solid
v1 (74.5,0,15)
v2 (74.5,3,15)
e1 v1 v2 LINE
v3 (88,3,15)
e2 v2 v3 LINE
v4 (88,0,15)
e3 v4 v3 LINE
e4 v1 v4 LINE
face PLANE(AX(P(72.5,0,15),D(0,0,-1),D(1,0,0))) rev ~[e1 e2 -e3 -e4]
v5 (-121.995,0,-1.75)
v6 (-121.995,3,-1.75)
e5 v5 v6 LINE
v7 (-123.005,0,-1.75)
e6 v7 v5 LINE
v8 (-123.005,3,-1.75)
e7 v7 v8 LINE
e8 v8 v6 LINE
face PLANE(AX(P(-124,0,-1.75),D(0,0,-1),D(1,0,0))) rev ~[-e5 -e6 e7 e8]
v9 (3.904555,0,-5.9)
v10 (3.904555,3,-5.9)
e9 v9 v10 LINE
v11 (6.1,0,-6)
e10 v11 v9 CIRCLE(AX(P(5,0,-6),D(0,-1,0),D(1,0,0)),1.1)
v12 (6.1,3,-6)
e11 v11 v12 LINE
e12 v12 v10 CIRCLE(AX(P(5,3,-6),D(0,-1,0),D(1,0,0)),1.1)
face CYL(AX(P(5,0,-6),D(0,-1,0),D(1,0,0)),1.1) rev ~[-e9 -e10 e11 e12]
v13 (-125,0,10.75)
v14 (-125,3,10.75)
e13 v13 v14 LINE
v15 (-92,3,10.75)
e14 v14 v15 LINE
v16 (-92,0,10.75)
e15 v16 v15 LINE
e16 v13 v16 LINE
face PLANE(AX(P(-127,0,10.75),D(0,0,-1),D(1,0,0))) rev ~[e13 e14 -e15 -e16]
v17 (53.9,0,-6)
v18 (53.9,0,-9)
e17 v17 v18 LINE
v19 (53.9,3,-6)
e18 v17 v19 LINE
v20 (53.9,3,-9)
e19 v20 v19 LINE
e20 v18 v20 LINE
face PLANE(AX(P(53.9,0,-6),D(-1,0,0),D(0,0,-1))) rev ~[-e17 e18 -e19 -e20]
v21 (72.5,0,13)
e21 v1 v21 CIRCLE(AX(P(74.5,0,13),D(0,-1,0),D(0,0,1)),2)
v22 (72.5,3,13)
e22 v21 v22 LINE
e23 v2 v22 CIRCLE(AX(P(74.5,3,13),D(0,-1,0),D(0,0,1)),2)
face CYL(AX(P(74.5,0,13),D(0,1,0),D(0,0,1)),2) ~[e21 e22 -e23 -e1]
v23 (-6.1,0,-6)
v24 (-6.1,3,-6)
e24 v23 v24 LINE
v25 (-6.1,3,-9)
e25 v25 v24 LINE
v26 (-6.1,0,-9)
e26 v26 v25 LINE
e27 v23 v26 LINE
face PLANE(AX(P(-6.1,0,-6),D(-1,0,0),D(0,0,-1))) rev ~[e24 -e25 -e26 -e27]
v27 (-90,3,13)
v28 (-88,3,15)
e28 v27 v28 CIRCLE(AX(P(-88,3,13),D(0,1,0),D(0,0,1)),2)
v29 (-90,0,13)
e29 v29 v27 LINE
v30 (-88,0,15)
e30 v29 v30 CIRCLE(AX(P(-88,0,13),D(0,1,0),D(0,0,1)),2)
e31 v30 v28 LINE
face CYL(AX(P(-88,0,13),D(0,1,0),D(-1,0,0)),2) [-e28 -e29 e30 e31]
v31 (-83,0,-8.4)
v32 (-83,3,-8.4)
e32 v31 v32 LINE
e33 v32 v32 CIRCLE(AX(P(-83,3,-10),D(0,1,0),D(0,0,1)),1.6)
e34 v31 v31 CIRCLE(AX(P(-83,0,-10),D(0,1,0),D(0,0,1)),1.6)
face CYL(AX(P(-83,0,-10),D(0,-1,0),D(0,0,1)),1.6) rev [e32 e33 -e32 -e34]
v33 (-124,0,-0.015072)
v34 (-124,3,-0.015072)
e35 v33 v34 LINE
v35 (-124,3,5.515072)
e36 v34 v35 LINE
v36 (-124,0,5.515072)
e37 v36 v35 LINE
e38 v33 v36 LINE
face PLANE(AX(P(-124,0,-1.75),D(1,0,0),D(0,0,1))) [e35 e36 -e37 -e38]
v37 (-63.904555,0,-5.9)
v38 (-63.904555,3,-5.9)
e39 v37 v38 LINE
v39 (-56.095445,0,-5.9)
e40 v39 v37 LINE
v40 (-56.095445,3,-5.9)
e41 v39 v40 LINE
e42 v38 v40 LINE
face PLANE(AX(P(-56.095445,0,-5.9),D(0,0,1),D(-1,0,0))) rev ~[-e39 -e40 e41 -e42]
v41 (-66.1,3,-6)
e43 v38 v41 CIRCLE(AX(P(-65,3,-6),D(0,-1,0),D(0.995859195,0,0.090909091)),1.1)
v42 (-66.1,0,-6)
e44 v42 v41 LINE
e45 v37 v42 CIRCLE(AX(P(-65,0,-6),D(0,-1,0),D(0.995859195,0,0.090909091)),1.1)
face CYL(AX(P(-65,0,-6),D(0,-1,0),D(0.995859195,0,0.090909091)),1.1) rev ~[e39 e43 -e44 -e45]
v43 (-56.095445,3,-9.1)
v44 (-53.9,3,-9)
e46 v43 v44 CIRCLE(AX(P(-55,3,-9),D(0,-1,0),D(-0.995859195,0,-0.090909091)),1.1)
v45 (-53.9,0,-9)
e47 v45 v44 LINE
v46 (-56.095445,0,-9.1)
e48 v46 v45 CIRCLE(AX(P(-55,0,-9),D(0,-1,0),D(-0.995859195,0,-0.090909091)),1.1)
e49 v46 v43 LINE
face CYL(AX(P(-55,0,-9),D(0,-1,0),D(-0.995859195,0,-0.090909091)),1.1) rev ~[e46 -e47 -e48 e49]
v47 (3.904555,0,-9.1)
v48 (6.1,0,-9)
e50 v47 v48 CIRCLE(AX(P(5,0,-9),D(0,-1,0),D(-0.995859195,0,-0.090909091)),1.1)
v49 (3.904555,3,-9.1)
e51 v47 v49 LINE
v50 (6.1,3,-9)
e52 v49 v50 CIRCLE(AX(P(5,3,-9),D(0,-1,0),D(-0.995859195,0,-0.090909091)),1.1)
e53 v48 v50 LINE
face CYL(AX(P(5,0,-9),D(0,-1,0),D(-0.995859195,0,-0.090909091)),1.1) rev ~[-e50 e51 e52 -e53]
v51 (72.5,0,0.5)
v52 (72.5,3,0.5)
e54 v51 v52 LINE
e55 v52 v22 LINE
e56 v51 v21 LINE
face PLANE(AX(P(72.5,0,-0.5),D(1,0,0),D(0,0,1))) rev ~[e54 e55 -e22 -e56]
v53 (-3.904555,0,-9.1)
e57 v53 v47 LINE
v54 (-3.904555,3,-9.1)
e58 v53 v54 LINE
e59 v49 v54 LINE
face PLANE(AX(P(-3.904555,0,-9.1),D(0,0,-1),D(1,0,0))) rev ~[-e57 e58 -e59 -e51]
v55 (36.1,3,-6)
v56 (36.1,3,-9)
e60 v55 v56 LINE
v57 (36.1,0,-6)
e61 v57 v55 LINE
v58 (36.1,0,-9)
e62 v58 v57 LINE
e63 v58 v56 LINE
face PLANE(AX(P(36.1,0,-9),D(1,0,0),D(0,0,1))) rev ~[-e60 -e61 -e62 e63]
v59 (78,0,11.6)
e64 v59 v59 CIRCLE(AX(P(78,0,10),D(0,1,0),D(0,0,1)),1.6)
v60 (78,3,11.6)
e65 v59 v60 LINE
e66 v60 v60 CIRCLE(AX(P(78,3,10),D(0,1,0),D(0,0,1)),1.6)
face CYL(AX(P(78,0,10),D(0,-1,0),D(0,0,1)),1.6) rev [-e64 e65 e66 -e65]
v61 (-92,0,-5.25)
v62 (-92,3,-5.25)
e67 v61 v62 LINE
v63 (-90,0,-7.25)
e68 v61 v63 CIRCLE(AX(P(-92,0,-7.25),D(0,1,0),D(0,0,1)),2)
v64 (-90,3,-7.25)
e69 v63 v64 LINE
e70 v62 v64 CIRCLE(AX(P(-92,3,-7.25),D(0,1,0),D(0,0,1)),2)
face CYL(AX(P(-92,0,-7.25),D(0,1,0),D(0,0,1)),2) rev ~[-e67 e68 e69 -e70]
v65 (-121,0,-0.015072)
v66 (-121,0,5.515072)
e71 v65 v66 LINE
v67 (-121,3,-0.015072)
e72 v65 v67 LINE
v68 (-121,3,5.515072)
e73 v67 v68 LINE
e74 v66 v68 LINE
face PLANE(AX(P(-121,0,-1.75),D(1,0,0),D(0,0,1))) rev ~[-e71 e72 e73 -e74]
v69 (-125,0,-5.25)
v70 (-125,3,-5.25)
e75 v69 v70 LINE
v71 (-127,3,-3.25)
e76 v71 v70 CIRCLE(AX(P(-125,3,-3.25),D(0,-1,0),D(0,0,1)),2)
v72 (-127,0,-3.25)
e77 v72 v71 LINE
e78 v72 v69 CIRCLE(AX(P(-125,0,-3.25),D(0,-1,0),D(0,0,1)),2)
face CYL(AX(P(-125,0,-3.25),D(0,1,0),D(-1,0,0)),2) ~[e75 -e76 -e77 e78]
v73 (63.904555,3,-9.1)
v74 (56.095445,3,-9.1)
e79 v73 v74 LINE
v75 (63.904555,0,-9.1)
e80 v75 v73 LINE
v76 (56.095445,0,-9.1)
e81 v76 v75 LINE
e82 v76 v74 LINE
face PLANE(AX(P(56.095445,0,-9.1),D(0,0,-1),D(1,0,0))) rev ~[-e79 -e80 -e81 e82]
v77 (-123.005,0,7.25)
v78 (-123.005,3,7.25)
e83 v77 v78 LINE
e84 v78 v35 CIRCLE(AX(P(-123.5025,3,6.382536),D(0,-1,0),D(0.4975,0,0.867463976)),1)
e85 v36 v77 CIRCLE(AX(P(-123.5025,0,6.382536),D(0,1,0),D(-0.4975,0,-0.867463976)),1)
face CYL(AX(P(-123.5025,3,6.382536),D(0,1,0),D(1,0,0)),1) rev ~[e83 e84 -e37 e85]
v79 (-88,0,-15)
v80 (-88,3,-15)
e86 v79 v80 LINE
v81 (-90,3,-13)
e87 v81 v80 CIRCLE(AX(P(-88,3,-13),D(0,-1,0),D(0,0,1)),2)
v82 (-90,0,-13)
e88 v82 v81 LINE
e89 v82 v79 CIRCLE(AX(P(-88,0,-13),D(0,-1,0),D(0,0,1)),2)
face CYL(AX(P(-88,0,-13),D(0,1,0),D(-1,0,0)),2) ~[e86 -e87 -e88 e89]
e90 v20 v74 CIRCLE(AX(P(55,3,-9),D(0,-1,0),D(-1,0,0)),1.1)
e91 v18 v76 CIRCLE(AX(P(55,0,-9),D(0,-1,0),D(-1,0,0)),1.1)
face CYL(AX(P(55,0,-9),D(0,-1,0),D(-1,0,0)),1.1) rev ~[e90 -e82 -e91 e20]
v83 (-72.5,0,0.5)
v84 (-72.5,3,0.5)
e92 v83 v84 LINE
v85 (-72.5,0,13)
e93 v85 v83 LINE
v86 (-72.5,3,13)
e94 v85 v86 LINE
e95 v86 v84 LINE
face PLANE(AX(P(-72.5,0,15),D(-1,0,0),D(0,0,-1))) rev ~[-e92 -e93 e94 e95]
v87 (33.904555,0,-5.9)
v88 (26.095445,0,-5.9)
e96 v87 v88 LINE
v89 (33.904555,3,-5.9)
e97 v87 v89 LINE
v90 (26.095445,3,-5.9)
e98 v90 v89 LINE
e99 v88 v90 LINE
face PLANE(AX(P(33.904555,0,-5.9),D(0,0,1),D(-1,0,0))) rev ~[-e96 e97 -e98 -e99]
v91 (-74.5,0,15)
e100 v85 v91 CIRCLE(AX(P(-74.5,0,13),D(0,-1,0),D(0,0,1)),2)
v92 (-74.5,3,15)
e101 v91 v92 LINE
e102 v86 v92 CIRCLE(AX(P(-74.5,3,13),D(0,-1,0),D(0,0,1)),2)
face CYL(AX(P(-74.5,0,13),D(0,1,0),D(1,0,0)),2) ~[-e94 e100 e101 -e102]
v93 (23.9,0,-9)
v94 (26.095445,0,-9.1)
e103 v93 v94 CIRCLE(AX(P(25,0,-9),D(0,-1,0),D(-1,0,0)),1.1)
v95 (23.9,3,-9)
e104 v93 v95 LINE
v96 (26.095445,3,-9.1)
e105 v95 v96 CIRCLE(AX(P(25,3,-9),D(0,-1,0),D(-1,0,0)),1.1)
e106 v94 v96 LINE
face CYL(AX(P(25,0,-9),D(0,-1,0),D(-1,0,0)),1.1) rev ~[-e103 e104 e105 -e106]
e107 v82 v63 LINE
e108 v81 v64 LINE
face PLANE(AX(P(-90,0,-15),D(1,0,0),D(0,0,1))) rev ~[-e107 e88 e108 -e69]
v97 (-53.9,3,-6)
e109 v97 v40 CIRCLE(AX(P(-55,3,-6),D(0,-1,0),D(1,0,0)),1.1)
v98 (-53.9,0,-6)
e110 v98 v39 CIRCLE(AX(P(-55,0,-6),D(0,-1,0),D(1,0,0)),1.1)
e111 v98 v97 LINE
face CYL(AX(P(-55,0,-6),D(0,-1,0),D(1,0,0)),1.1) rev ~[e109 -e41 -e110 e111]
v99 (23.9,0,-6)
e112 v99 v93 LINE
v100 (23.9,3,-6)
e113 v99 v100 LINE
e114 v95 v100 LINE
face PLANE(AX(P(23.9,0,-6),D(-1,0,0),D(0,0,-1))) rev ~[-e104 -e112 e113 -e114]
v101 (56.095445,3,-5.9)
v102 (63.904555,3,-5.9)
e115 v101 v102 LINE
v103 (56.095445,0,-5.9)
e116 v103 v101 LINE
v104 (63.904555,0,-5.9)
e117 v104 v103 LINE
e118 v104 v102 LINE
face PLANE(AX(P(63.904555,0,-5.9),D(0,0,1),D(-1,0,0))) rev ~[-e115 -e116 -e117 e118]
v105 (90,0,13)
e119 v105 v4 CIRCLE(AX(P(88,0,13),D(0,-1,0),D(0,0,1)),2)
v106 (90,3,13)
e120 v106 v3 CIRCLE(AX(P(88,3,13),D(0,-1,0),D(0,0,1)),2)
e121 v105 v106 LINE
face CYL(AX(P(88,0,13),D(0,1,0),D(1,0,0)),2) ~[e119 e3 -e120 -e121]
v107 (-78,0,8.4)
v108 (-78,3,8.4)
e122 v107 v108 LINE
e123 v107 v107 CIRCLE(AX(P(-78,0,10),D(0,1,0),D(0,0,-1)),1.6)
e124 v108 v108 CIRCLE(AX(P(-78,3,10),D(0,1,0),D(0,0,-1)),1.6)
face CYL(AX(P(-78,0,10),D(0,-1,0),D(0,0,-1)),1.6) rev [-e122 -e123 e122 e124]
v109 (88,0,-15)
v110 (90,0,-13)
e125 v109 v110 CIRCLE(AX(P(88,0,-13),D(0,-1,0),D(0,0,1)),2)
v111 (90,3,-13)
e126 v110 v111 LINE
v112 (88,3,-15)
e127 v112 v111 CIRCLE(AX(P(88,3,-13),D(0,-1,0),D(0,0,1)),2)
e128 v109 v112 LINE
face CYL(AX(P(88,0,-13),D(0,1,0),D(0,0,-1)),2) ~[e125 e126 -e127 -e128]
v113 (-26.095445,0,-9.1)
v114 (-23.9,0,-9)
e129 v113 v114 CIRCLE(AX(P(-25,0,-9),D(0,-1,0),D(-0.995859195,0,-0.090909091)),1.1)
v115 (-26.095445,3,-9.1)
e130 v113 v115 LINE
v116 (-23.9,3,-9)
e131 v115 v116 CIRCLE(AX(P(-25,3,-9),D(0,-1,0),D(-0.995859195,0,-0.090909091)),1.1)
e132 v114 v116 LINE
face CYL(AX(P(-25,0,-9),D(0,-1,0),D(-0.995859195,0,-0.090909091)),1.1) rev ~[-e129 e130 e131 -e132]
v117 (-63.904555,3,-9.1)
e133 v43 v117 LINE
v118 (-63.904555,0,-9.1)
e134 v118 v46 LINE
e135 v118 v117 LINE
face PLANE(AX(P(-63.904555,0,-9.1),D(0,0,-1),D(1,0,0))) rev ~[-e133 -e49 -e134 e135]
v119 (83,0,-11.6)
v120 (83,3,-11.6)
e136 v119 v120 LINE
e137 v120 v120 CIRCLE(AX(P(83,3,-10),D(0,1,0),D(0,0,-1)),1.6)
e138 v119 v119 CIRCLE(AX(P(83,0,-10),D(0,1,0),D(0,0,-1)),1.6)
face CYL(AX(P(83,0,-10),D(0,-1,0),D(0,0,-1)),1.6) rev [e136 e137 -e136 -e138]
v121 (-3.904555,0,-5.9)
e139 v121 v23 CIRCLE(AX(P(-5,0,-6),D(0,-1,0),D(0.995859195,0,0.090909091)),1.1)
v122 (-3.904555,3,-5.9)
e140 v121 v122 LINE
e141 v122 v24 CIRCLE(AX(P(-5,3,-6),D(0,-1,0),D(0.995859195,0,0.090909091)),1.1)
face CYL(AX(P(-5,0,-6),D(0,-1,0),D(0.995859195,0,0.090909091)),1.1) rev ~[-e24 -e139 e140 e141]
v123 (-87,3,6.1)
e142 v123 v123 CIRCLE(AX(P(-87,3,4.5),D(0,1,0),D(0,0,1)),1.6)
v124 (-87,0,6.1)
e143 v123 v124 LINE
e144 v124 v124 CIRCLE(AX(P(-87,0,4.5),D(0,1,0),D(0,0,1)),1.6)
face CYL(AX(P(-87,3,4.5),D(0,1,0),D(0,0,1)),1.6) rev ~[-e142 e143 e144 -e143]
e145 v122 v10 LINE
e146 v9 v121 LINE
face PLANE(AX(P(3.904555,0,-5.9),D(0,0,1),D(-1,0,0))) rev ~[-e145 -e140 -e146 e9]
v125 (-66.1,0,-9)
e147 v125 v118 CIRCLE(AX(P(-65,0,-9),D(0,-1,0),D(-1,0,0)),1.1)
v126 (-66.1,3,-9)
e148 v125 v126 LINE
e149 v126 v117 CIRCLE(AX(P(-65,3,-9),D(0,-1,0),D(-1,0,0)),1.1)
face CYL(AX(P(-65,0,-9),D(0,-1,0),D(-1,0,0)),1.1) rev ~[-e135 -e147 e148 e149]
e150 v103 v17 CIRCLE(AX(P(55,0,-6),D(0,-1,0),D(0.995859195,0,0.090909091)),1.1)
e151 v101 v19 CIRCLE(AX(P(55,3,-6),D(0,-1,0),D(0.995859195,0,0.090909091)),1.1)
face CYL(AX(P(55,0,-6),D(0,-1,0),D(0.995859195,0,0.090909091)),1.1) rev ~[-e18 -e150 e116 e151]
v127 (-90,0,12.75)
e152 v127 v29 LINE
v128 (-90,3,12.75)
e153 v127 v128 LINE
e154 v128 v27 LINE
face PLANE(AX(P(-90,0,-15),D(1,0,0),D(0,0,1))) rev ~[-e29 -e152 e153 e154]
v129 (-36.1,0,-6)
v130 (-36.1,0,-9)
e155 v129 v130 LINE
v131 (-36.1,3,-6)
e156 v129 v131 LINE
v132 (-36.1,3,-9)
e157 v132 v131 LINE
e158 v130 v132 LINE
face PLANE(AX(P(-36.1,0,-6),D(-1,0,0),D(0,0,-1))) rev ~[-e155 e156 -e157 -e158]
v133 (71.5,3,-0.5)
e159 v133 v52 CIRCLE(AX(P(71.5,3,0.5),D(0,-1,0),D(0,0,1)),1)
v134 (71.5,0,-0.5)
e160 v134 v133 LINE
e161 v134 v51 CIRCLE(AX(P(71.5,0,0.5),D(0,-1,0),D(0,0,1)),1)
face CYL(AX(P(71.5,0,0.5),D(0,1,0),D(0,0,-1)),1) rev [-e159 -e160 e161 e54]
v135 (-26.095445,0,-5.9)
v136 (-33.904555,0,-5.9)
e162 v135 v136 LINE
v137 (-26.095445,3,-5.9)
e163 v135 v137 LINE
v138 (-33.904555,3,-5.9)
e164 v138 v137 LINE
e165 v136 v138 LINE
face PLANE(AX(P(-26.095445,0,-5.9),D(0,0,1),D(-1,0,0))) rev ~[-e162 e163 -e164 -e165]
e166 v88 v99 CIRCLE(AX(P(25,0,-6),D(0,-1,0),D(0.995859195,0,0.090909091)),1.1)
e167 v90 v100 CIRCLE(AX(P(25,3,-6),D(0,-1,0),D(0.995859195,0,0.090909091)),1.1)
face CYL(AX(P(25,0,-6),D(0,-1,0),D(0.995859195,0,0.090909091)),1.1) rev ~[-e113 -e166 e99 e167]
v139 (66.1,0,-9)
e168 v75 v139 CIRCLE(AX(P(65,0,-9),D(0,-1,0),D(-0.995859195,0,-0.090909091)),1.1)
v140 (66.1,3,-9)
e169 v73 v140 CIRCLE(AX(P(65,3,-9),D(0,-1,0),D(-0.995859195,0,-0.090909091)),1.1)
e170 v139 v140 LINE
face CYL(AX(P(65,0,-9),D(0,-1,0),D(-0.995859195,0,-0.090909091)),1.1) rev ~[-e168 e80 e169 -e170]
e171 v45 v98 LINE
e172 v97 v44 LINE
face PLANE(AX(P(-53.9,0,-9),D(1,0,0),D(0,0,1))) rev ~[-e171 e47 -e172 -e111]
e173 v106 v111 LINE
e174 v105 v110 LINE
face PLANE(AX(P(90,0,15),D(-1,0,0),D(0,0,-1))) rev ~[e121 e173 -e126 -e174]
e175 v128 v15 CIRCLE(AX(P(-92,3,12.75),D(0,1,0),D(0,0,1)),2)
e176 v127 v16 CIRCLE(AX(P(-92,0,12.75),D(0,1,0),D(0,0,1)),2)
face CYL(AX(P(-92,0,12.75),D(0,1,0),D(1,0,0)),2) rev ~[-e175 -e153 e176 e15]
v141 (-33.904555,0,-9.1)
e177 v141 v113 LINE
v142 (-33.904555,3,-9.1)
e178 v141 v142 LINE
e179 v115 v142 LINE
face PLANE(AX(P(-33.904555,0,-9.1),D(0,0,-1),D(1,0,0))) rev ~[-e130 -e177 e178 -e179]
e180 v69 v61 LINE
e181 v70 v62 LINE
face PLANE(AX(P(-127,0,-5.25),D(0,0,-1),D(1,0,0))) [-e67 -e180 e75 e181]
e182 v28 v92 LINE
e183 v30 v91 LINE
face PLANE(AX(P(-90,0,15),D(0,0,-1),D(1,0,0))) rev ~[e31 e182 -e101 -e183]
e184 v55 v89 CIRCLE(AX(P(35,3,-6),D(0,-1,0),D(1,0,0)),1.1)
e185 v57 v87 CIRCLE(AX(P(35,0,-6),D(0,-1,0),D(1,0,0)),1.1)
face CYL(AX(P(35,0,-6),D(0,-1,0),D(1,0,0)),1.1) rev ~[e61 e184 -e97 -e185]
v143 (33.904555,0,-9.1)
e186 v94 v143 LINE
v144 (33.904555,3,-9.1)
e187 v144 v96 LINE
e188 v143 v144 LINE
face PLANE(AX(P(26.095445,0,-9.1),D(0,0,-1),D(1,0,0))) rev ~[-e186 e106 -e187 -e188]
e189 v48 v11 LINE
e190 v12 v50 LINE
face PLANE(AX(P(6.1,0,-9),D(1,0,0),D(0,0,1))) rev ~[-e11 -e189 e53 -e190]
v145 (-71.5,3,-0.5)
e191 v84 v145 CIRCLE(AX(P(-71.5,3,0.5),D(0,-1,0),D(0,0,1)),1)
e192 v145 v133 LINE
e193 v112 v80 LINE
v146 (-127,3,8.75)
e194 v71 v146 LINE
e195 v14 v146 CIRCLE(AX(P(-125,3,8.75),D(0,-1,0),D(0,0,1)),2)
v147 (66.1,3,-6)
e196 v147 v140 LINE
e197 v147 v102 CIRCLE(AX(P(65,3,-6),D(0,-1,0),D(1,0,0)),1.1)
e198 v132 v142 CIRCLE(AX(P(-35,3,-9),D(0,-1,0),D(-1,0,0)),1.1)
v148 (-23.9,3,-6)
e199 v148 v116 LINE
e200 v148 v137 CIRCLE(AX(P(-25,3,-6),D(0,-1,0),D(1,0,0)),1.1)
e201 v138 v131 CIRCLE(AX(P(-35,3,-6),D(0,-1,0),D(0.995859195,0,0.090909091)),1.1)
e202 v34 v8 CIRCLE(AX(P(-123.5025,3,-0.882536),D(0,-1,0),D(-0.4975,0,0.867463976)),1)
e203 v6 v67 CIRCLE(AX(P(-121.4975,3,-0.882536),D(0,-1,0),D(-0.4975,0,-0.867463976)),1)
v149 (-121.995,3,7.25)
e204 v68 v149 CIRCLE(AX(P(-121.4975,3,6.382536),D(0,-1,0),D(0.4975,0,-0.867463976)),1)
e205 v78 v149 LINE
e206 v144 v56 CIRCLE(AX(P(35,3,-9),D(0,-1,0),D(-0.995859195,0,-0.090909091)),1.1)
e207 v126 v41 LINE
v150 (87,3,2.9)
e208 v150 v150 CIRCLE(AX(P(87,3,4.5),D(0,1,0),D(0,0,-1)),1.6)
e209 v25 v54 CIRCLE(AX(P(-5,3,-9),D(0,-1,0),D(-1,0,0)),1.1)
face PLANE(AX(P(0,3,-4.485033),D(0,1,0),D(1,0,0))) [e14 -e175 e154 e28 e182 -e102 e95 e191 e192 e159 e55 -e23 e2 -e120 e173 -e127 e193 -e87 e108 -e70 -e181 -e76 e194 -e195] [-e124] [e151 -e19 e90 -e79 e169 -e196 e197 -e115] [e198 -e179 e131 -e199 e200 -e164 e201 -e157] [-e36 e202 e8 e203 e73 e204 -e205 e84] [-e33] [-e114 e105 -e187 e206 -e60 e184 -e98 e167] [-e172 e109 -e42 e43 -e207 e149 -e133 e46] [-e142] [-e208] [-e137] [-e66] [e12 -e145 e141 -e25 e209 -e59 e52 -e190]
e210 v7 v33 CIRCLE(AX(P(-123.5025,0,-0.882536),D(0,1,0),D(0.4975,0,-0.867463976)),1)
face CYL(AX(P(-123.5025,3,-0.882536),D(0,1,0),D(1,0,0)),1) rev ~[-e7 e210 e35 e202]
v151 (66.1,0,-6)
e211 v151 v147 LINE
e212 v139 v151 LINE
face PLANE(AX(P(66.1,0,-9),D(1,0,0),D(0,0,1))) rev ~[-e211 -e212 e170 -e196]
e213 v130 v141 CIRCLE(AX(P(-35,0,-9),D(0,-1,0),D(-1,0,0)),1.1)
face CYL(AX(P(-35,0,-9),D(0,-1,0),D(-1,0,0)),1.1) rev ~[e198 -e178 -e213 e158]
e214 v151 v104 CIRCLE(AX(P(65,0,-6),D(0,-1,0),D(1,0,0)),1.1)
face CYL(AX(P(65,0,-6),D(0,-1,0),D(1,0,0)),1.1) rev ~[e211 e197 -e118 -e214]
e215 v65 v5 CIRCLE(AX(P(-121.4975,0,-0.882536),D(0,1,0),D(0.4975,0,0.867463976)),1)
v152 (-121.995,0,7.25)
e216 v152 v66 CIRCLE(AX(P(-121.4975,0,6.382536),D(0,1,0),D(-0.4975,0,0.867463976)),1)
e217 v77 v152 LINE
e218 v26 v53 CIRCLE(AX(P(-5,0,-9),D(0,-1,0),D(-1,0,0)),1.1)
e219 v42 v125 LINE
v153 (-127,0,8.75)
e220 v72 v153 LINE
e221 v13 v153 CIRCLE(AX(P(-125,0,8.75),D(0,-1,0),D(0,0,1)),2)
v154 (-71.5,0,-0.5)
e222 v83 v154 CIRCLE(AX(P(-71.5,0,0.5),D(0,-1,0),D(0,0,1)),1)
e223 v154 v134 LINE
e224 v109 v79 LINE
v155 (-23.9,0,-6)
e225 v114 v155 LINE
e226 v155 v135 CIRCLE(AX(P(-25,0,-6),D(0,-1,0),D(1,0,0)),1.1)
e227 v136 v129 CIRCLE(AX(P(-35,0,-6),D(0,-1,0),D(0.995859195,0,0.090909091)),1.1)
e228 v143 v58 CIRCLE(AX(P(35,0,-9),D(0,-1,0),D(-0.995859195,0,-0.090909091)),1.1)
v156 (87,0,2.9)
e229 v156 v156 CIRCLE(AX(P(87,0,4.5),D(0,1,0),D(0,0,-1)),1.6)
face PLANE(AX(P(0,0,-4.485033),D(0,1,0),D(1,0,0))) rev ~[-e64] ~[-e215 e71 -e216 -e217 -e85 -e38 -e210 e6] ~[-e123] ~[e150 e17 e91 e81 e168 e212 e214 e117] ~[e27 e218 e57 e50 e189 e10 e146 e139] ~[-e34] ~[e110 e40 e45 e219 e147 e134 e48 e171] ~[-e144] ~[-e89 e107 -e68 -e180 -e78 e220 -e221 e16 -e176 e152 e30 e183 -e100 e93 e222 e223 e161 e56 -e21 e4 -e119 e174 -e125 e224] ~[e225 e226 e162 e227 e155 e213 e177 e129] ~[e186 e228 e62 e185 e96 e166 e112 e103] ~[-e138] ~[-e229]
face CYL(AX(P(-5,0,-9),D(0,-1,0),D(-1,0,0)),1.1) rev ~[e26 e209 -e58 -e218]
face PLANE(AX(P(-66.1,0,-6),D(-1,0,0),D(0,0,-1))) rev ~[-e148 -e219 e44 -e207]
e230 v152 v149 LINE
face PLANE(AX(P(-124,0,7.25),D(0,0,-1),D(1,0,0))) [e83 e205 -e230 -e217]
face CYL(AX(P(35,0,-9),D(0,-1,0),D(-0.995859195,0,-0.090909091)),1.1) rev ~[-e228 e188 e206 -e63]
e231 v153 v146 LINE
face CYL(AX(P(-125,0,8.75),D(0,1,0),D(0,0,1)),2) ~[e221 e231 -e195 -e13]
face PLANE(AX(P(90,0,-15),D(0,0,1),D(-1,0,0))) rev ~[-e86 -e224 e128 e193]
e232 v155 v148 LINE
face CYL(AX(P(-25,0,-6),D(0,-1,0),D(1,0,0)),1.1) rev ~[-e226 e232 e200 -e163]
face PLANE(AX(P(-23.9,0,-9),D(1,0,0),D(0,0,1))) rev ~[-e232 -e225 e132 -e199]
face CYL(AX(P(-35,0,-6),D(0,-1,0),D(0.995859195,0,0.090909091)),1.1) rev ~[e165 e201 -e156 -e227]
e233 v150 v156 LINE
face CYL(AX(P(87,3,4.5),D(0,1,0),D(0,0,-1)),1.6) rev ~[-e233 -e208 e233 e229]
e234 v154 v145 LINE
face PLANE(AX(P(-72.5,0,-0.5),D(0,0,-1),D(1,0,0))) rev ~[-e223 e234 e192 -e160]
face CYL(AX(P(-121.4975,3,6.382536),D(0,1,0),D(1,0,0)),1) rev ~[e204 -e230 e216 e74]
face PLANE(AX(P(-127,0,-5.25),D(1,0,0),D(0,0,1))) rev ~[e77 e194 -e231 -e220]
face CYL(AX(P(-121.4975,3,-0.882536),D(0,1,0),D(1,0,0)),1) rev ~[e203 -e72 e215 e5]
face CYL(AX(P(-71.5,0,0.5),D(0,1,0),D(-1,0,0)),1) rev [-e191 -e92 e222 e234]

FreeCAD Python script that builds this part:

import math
import FreeCAD as App
import Part
import Sketcher
Q = App.Units.Quantity


def edges_at(feature, points):
    """Names of the edges that pass closest to the given points."""
    edges = feature.Shape.Edges
    near = lambda p: min(range(len(edges)), key=lambda i: edges[i].distToShape(Part.Vertex(*p))[0])
    return sorted({f"Edge{near(p) + 1}" for p in points})


def add_polygon(sketch, points):
    """Adds a closed chain of lines whose ends are joined by coincident constraints."""
    first, n = sketch.GeometryCount, len(points)
    for a, b in zip(points, points[1:] + points[:1]):
        sketch.addGeometry(Part.LineSegment(App.Vector(*a, 0), App.Vector(*b, 0)), False)
    for i in range(n):
        sketch.addConstraint(Sketcher.Constraint("Coincident", first + i, 2, first + (i + 1) % n, 1))

doc = App.newDocument("Part")
body = doc.addObject("PartDesign::Body", "Body")

sketch1 = doc.addObject("Sketcher::SketchObject", "Sketch")
body.addObject(sketch1)
sketch1.AttachmentSupport = (doc.XZ_Plane, [""])
sketch1.MapMode = "FlatFace"
add_polygon(sketch1, [(-90, 15), (-72.5, 15), (-72.5, -0.5), (72.5, -0.5), (72.5, 15), (90, 15), (90, -15), (-90, -15)])
sketch1.addGeometry(Part.Circle(App.Vector(-78, 10, 0), App.Vector(0, 0, 1), 1.6), False)
sketch1.addGeometry(Part.Circle(App.Vector(78, 10, 0), App.Vector(0, 0, 1), 1.6), False)
sketch1.addGeometry(Part.Circle(App.Vector(-83, -10, 0), App.Vector(0, 0, 1), 1.6), False)
sketch1.addGeometry(Part.Circle(App.Vector(83, -10, 0), App.Vector(0, 0, 1), 1.6), False)
sketch1.addConstraint(Sketcher.Constraint("Horizontal", 0))
sketch1.addConstraint(Sketcher.Constraint("Vertical", 1))
sketch1.addConstraint(Sketcher.Constraint("Horizontal", 2))
sketch1.addConstraint(Sketcher.Constraint("Vertical", 3))
sketch1.addConstraint(Sketcher.Constraint("Horizontal", 4))
sketch1.addConstraint(Sketcher.Constraint("Vertical", 5))
sketch1.addConstraint(Sketcher.Constraint("Horizontal", 6))
sketch1.addConstraint(Sketcher.Constraint("Vertical", 7))
sketch1.addConstraint(Sketcher.Constraint("Equal", 8, 9))
sketch1.addConstraint(Sketcher.Constraint("Equal", 9, 10))
sketch1.addConstraint(Sketcher.Constraint("Equal", 10, 11))
sketch1.addConstraint(Sketcher.Constraint("Symmetric", 4, 2, 6, 2, -1, 1))
sketch1.addConstraint(Sketcher.Constraint("Symmetric", 8, 3, 9, 3, -2))
sketch1.addConstraint(Sketcher.Constraint("Symmetric", 10, 3, 11, 3, -2))
sketch1.addConstraint(Sketcher.Constraint("Symmetric", 0, 2, 3, 2, -2))
sketch1.addConstraint(Sketcher.Constraint("Diameter", 8, Q("3.2 mm")))
sketch1.addConstraint(Sketcher.Constraint("DistanceX", 2, 1, 2, 2, Q("145 mm")))
sketch1.addConstraint(Sketcher.Constraint("DistanceX", 6, 2, 6, 1, Q("180 mm")))
sketch1.addConstraint(Sketcher.Constraint("DistanceY", 5, 2, 5, 1, Q("30 mm")))
sketch1.addConstraint(Sketcher.Constraint("DistanceY", 1, 2, 1, 1, Q("15.5 mm")))
sketch1.addConstraint(Sketcher.Constraint("DistanceX", 8, 3, -1, 1, Q("78 mm")))
sketch1.addConstraint(Sketcher.Constraint("DistanceY", -1, 1, 8, 3, Q("10 mm")))
sketch1.addConstraint(Sketcher.Constraint("DistanceX", 10, 3, -1, 1, Q("83 mm")))
sketch1.addConstraint(Sketcher.Constraint("DistanceY", 10, 3, -1, 1, Q("10 mm")))
pad1 = doc.addObject("PartDesign::Pad", "Pad")
body.addObject(pad1)
pad1.Profile = sketch1
pad1.Length = 3
pad1.Reversed = True

sketch2 = doc.addObject("Sketcher::SketchObject", "Sketch001")
body.addObject(sketch2)
sketch2.AttachmentSupport = (doc.XZ_Plane, [""])
sketch2.MapMode = "FlatFace"
sketch2.AttachmentOffset = App.Placement(App.Vector(0, 0, -3), App.Rotation())
sketch2.addGeometry(Part.Circle(App.Vector(87, 4.5, 0), App.Vector(0, 0, 1), 1.6), False)
sketch2.addGeometry(Part.Circle(App.Vector(-87, 4.5, 0), App.Vector(0, 0, 1), 1.6), False)
sketch2.addConstraint(Sketcher.Constraint("Equal", 0, 1))
sketch2.addConstraint(Sketcher.Constraint("Symmetric", 0, 3, 1, 3, -2))
sketch2.addConstraint(Sketcher.Constraint("Diameter", 0, Q("3.2 mm")))
sketch2.addConstraint(Sketcher.Constraint("DistanceX", -1, 1, 0, 3, Q("87 mm")))
sketch2.addConstraint(Sketcher.Constraint("DistanceY", -1, 1, 0, 3, Q("4.5 mm")))
pocket1 = doc.addObject("PartDesign::Pocket", "Pocket")
body.addObject(pocket1)
pocket1.Profile = sketch2
pocket1.Type = "ThroughAll"
pocket1.Reversed = True
doc.recompute()

fillet = doc.addObject("PartDesign::Fillet", "Fillet")
body.addObject(fillet)
fillet.Base = (pocket1, edges_at(pocket1, [(72.5, 1.5, -0.5), (-72.5, 1.5, -0.5)]))
fillet.Radius = 1

sketch3 = doc.addObject("Sketcher::SketchObject", "Sketch002")
body.addObject(sketch3)
sketch3.AttachmentSupport = (doc.XZ_Plane, [""])
sketch3.MapMode = "FlatFace"
add_polygon(sketch3, [(54, -6), (54, -9), (66, -9), (66, -6)])
add_polygon(sketch3, [(24, -6), (24, -9), (36, -9), (36, -6)])
add_polygon(sketch3, [(-6, -6), (-6, -9), (6, -9), (6, -6)])
add_polygon(sketch3, [(-36, -6), (-36, -9), (-24, -9), (-24, -6)])
add_polygon(sketch3, [(-66, -6), (-66, -9), (-54, -9), (-54, -6)])
sketch3.addConstraint(Sketcher.Constraint("Vertical", 0))
sketch3.addConstraint(Sketcher.Constraint("Horizontal", 1))
sketch3.addConstraint(Sketcher.Constraint("Vertical", 2))
sketch3.addConstraint(Sketcher.Constraint("Horizontal", 3))
sketch3.addConstraint(Sketcher.Constraint("Vertical", 4))
sketch3.addConstraint(Sketcher.Constraint("Horizontal", 5))
sketch3.addConstraint(Sketcher.Constraint("Vertical", 6))
sketch3.addConstraint(Sketcher.Constraint("Horizontal", 7))
sketch3.addConstraint(Sketcher.Constraint("Vertical", 8))
sketch3.addConstraint(Sketcher.Constraint("Horizontal", 9))
sketch3.addConstraint(Sketcher.Constraint("Vertical", 10))
sketch3.addConstraint(Sketcher.Constraint("Horizontal", 11))
sketch3.addConstraint(Sketcher.Constraint("Vertical", 12))
sketch3.addConstraint(Sketcher.Constraint("Horizontal", 13))
sketch3.addConstraint(Sketcher.Constraint("Vertical", 14))
sketch3.addConstraint(Sketcher.Constraint("Horizontal", 15))
sketch3.addConstraint(Sketcher.Constraint("Vertical", 16))
sketch3.addConstraint(Sketcher.Constraint("Horizontal", 17))
sketch3.addConstraint(Sketcher.Constraint("Vertical", 18))
sketch3.addConstraint(Sketcher.Constraint("Horizontal", 19))
sketch3.addConstraint(Sketcher.Constraint("Symmetric", 5, 2, 12, 2, -2))
sketch3.addConstraint(Sketcher.Constraint("Symmetric", 7, 2, 14, 2, -2))
sketch3.addConstraint(Sketcher.Constraint("Symmetric", 1, 2, 16, 2, -2))
sketch3.addConstraint(Sketcher.Constraint("Symmetric", 3, 2, 18, 2, -2))
sketch3.addConstraint(Sketcher.Constraint("Horizontal", 1, 2, 4, 2))
sketch3.addConstraint(Sketcher.Constraint("Horizontal", 3, 2, 6, 2))
sketch3.addConstraint(Sketcher.Constraint("Horizontal", 5, 2, 8, 2))
sketch3.addConstraint(Sketcher.Constraint("Horizontal", 7, 2, 10, 2))
sketch3.addConstraint(Sketcher.Constraint("Equal", 3, 5))
sketch3.addConstraint(Sketcher.Constraint("Equal", 7, 9))
sketch3.addConstraint(Sketcher.Constraint("DistanceX", 1, 1, 1, 2, Q("12 mm")))
sketch3.addConstraint(Sketcher.Constraint("DistanceY", 0, 2, 0, 1, Q("3 mm")))
sketch3.addConstraint(Sketcher.Constraint("DistanceX", -1, 1, 0, 2, Q("54 mm")))
sketch3.addConstraint(Sketcher.Constraint("DistanceY", 0, 2, -1, 1, Q("9 mm")))
sketch3.addConstraint(Sketcher.Constraint("DistanceX", -1, 1, 4, 2, Q("24 mm")))
sketch3.addConstraint(Sketcher.Constraint("DistanceX", 8, 2, -1, 1, Q("6 mm")))
pocket2 = doc.addObject("PartDesign::Pocket", "Pocket001")
body.addObject(pocket2)
pocket2.Profile = sketch3
pocket2.Type = "ThroughAll"

sketch4 = doc.addObject("Sketcher::SketchObject", "Sketch003")
body.addObject(sketch4)
sketch4.AttachmentSupport = (doc.XZ_Plane, [""])
sketch4.MapMode = "FlatFace"
sketch4.addGeometry(Part.Circle(App.Vector(65, -9, 0), App.Vector(0, 0, 1), 1), False)
sketch4.addGeometry(Part.Circle(App.Vector(55, -9, 0), App.Vector(0, 0, 1), 1), False)
sketch4.addGeometry(Part.Circle(App.Vector(55, -6, 0), App.Vector(0, 0, 1), 1), False)
sketch4.addGeometry(Part.Circle(App.Vector(65, -6, 0), App.Vector(0, 0, 1), 1), False)
sketch4.addGeometry(Part.Circle(App.Vector(35, -9, 0), App.Vector(0, 0, 1), 1), False)
sketch4.addGeometry(Part.Circle(App.Vector(25, -9, 0), App.Vector(0, 0, 1), 1), False)
sketch4.addGeometry(Part.Circle(App.Vector(25, -6, 0), App.Vector(0, 0, 1), 1), False)
sketch4.addGeometry(Part.Circle(App.Vector(35, -6, 0), App.Vector(0, 0, 1), 1), False)
sketch4.addGeometry(Part.Circle(App.Vector(5, -9, 0), App.Vector(0, 0, 1), 1), False)
sketch4.addGeometry(Part.Circle(App.Vector(-5, -9, 0), App.Vector(0, 0, 1), 1), False)
sketch4.addGeometry(Part.Circle(App.Vector(-5, -6, 0), App.Vector(0, 0, 1), 1), False)
sketch4.addGeometry(Part.Circle(App.Vector(5, -6, 0), App.Vector(0, 0, 1), 1), False)
sketch4.addGeometry(Part.Circle(App.Vector(-25, -9, 0), App.Vector(0, 0, 1), 1), False)
sketch4.addGeometry(Part.Circle(App.Vector(-35, -9, 0), App.Vector(0, 0, 1), 1), False)
sketch4.addGeometry(Part.Circle(App.Vector(-35, -6, 0), App.Vector(0, 0, 1), 1), False)
sketch4.addGeometry(Part.Circle(App.Vector(-25, -6, 0), App.Vector(0, 0, 1), 1), False)
sketch4.addGeometry(Part.Circle(App.Vector(-55, -9, 0), App.Vector(0, 0, 1), 1), False)
sketch4.addGeometry(Part.Circle(App.Vector(-65, -9, 0), App.Vector(0, 0, 1), 1), False)
sketch4.addGeometry(Part.Circle(App.Vector(-65, -6, 0), App.Vector(0, 0, 1), 1), False)
sketch4.addGeometry(Part.Circle(App.Vector(-55, -6, 0), App.Vector(0, 0, 1), 1), False)
sketch4.addConstraint(Sketcher.Constraint("Equal", 0, 1))
sketch4.addConstraint(Sketcher.Constraint("Equal", 1, 2))
sketch4.addConstraint(Sketcher.Constraint("Equal", 2, 3))
sketch4.addConstraint(Sketcher.Constraint("Equal", 3, 4))
sketch4.addConstraint(Sketcher.Constraint("Equal", 4, 5))
sketch4.addConstraint(Sketcher.Constraint("Equal", 5, 6))
sketch4.addConstraint(Sketcher.Constraint("Equal", 6, 7))
sketch4.addConstraint(Sketcher.Constraint("Equal", 7, 8))
sketch4.addConstraint(Sketcher.Constraint("Equal", 8, 9))
sketch4.addConstraint(Sketcher.Constraint("Equal", 9, 10))
sketch4.addConstraint(Sketcher.Constraint("Equal", 10, 11))
sketch4.addConstraint(Sketcher.Constraint("Equal", 11, 12))
sketch4.addConstraint(Sketcher.Constraint("Equal", 12, 13))
sketch4.addConstraint(Sketcher.Constraint("Equal", 13, 14))
sketch4.addConstraint(Sketcher.Constraint("Equal", 14, 15))
sketch4.addConstraint(Sketcher.Constraint("Equal", 15, 16))
sketch4.addConstraint(Sketcher.Constraint("Equal", 16, 17))
sketch4.addConstraint(Sketcher.Constraint("Equal", 17, 18))
sketch4.addConstraint(Sketcher.Constraint("Equal", 18, 19))
sketch4.addConstraint(Sketcher.Constraint("Symmetric", 8, 3, 9, 3, -2))
sketch4.addConstraint(Sketcher.Constraint("Symmetric", 10, 3, 11, 3, -2))
sketch4.addConstraint(Sketcher.Constraint("Symmetric", 5, 3, 12, 3, -2))
sketch4.addConstraint(Sketcher.Constraint("Symmetric", 4, 3, 13, 3, -2))
sketch4.addConstraint(Sketcher.Constraint("Symmetric", 7, 3, 14, 3, -2))
sketch4.addConstraint(Sketcher.Constraint("Symmetric", 6, 3, 15, 3, -2))
sketch4.addConstraint(Sketcher.Constraint("Symmetric", 1, 3, 16, 3, -2))
sketch4.addConstraint(Sketcher.Constraint("Symmetric", 0, 3, 17, 3, -2))
sketch4.addConstraint(Sketcher.Constraint("Symmetric", 3, 3, 18, 3, -2))
sketch4.addConstraint(Sketcher.Constraint("Symmetric", 2, 3, 19, 3, -2))
sketch4.addConstraint(Sketcher.Constraint("Horizontal", 0, 3, 1, 3))
sketch4.addConstraint(Sketcher.Constraint("Horizontal", 2, 3, 3, 3))
sketch4.addConstraint(Sketcher.Constraint("Horizontal", 1, 3, 4, 3))
sketch4.addConstraint(Sketcher.Constraint("Horizontal", 4, 3, 5, 3))
sketch4.addConstraint(Sketcher.Constraint("Horizontal", 3, 3, 6, 3))
sketch4.addConstraint(Sketcher.Constraint("Horizontal", 6, 3, 7, 3))
sketch4.addConstraint(Sketcher.Constraint("Horizontal", 5, 3, 8, 3))
sketch4.addConstraint(Sketcher.Constraint("Horizontal", 7, 3, 10, 3))
sketch4.addConstraint(Sketcher.Constraint("Vertical", 1, 3, 2, 3))
sketch4.addConstraint(Sketcher.Constraint("Vertical", 0, 3, 3, 3))
sketch4.addConstraint(Sketcher.Constraint("Vertical", 5, 3, 6, 3))
sketch4.addConstraint(Sketcher.Constraint("Vertical", 4, 3, 7, 3))
sketch4.addConstraint(Sketcher.Constraint("Vertical", 9, 3, 10, 3))
sketch4.addConstraint(Sketcher.Constraint("Diameter", 0, Q("2 mm")))
sketch4.addConstraint(Sketcher.Constraint("DistanceX", -1, 1, 0, 3, Q("65 mm")))
sketch4.addConstraint(Sketcher.Constraint("DistanceY", 0, 3, -1, 1, Q("9 mm")))
sketch4.addConstraint(Sketcher.Constraint("DistanceX", -1, 1, 1, 3, Q("55 mm")))
sketch4.addConstraint(Sketcher.Constraint("DistanceY", 2, 3, -1, 1, Q("6 mm")))
sketch4.addConstraint(Sketcher.Constraint("DistanceX", -1, 1, 4, 3, Q("35 mm")))
sketch4.addConstraint(Sketcher.Constraint("DistanceX", -1, 1, 5, 3, Q("25 mm")))
sketch4.addConstraint(Sketcher.Constraint("DistanceX", -1, 1, 8, 3, Q("5 mm")))
pocket3 = doc.addObject("PartDesign::Pocket", "Pocket002")
body.addObject(pocket3)
pocket3.Profile = sketch4
pocket3.Type = "ThroughAll"

sketch5 = doc.addObject("Sketcher::SketchObject", "Sketch004")
body.addObject(sketch5)
sketch5.AttachmentSupport = (doc.XZ_Plane, [""])
sketch5.MapMode = "FlatFace"
sketch5.addGeometry(Part.LineSegment(App.Vector(36.1, -9, 0), App.Vector(36.1, -6, 0)), False)
sketch5.addGeometry(Part.ArcOfCircle(Part.Circle(App.Vector(35, -6, 0), App.Vector(0, 0, 1), 1.1), math.radians(0), math.radians(174.784091)), False)
sketch5.addGeometry(Part.LineSegment(App.Vector(33.904555, -5.9, 0), App.Vector(26.095445, -5.9, 0)), False)
sketch5.addGeometry(Part.ArcOfCircle(Part.Circle(App.Vector(25, -6, 0), App.Vector(0, 0, 1), 1.1), math.radians(5.215909), math.radians(180)), False)
sketch5.addGeometry(Part.LineSegment(App.Vector(23.9, -6, 0), App.Vector(23.9, -9, 0)), False)
sketch5.addGeometry(Part.ArcOfCircle(Part.Circle(App.Vector(25, -9, 0), App.Vector(0, 0, 1), 1.1), math.radians(180), math.radians(354.784091)), False)
sketch5.addGeometry(Part.LineSegment(App.Vector(26.095445, -9.1, 0), App.Vector(33.904555, -9.1, 0)), False)
sketch5.addGeometry(Part.ArcOfCircle(Part.Circle(App.Vector(35, -9, 0), App.Vector(0, 0, 1), 1.1), math.radians(-174.784091), math.radians(0)), False)
sketch5.addGeometry(Part.LineSegment(App.Vector(66.1, -9, 0), App.Vector(66.1, -6, 0)), False)
sketch5.addGeometry(Part.ArcOfCircle(Part.Circle(App.Vector(65, -6, 0), App.Vector(0, 0, 1), 1.1), math.radians(0), math.radians(174.784091)), False)
sketch5.addGeometry(Part.LineSegment(App.Vector(63.904555, -5.9, 0), App.Vector(56.095445, -5.9, 0)), False)
sketch5.addGeometry(Part.ArcOfCircle(Part.Circle(App.Vector(55, -6, 0), App.Vector(0, 0, 1), 1.1), math.radians(5.215909), math.radians(180)), False)
sketch5.addGeometry(Part.LineSegment(App.Vector(53.9, -6, 0), App.Vector(53.9, -9, 0)), False)
sketch5.addGeometry(Part.ArcOfCircle(Part.Circle(App.Vector(55, -9, 0), App.Vector(0, 0, 1), 1.1), math.radians(180), math.radians(354.784091)), False)
sketch5.addGeometry(Part.LineSegment(App.Vector(56.095445, -9.1, 0), App.Vector(63.904555, -9.1, 0)), False)
sketch5.addGeometry(Part.ArcOfCircle(Part.Circle(App.Vector(65, -9, 0), App.Vector(0, 0, 1), 1.1), math.radians(-174.784091), math.radians(0)), False)
sketch5.addGeometry(Part.LineSegment(App.Vector(6.1, -9, 0), App.Vector(6.1, -6, 0)), False)
sketch5.addGeometry(Part.ArcOfCircle(Part.Circle(App.Vector(5, -6, 0), App.Vector(0, 0, 1), 1.1), math.radians(0), math.radians(174.784091)), False)
sketch5.addGeometry(Part.LineSegment(App.Vector(3.904555, -5.9, 0), App.Vector(-3.904555, -5.9, 0)), False)
sketch5.addGeometry(Part.ArcOfCircle(Part.Circle(App.Vector(-5, -6, 0), App.Vector(0, 0, 1), 1.1), math.radians(5.215909), math.radians(180)), False)
sketch5.addGeometry(Part.LineSegment(App.Vector(-6.1, -6, 0), App.Vector(-6.1, -9, 0)), False)
sketch5.addGeometry(Part.ArcOfCircle(Part.Circle(App.Vector(-5, -9, 0), App.Vector(0, 0, 1), 1.1), math.radians(180), math.radians(354.784091)), False)
sketch5.addGeometry(Part.LineSegment(App.Vector(-3.904555, -9.1, 0), App.Vector(3.904555, -9.1, 0)), False)
sketch5.addGeometry(Part.ArcOfCircle(Part.Circle(App.Vector(5, -9, 0), App.Vector(0, 0, 1), 1.1), math.radians(-174.784091), math.radians(0)), False)
sketch5.addGeometry(Part.LineSegment(App.Vector(-23.9, -9, 0), App.Vector(-23.9, -6, 0)), False)
sketch5.addGeometry(Part.ArcOfCircle(Part.Circle(App.Vector(-25, -6, 0), App.Vector(0, 0, 1), 1.1), math.radians(0), math.radians(174.784091)), False)
sketch5.addGeometry(Part.LineSegment(App.Vector(-26.095445, -5.9, 0), App.Vector(-33.904555, -5.9, 0)), False)
sketch5.addGeometry(Part.ArcOfCircle(Part.Circle(App.Vector(-35, -6, 0), App.Vector(0, 0, 1), 1.1), math.radians(5.215909), math.radians(180)), False)
sketch5.addGeometry(Part.LineSegment(App.Vector(-36.1, -6, 0), App.Vector(-36.1, -9, 0)), False)
sketch5.addGeometry(Part.ArcOfCircle(Part.Circle(App.Vector(-35, -9, 0), App.Vector(0, 0, 1), 1.1), math.radians(180), math.radians(354.784091)), False)
sketch5.addGeometry(Part.LineSegment(App.Vector(-33.904555, -9.1, 0), App.Vector(-26.095445, -9.1, 0)), False)
sketch5.addGeometry(Part.ArcOfCircle(Part.Circle(App.Vector(-25, -9, 0), App.Vector(0, 0, 1), 1.1), math.radians(-174.784091), math.radians(0)), False)
sketch5.addGeometry(Part.LineSegment(App.Vector(-53.9, -9, 0), App.Vector(-53.9, -6, 0)), False)
sketch5.addGeometry(Part.ArcOfCircle(Part.Circle(App.Vector(-55, -6, 0), App.Vector(0, 0, 1), 1.1), math.radians(0), math.radians(174.784091)), False)
sketch5.addGeometry(Part.LineSegment(App.Vector(-56.095445, -5.9, 0), App.Vector(-63.904555, -5.9, 0)), False)
sketch5.addGeometry(Part.ArcOfCircle(Part.Circle(App.Vector(-65, -6, 0), App.Vector(0, 0, 1), 1.1), math.radians(5.215909), math.radians(180)), False)
sketch5.addGeometry(Part.LineSegment(App.Vector(-66.1, -6, 0), App.Vector(-66.1, -9, 0)), False)
sketch5.addGeometry(Part.ArcOfCircle(Part.Circle(App.Vector(-65, -9, 0), App.Vector(0, 0, 1), 1.1), math.radians(180), math.radians(354.784091)), False)
sketch5.addGeometry(Part.LineSegment(App.Vector(-63.904555, -9.1, 0), App.Vector(-56.095445, -9.1, 0)), False)
sketch5.addGeometry(Part.ArcOfCircle(Part.Circle(App.Vector(-55, -9, 0), App.Vector(0, 0, 1), 1.1), math.radians(-174.784091), math.radians(0)), False)
sketch5.addConstraint(Sketcher.Constraint("Tangent", 0, 2, 1, 1))
sketch5.addConstraint(Sketcher.Constraint("Coincident", 1, 2, 2, 1))
sketch5.addConstraint(Sketcher.Constraint("Coincident", 2, 2, 3, 1))
sketch5.addConstraint(Sketcher.Constraint("Tangent", 3, 2, 4, 1))
sketch5.addConstraint(Sketcher.Constraint("Tangent", 4, 2, 5, 1))
sketch5.addConstraint(Sketcher.Constraint("Coincident", 5, 2, 6, 1))
sketch5.addConstraint(Sketcher.Constraint("Coincident", 6, 2, 7, 1))
sketch5.addConstraint(Sketcher.Constraint("Tangent", 7, 2, 0, 1))
sketch5.addConstraint(Sketcher.Constraint("Tangent", 8, 2, 9, 1))
sketch5.addConstraint(Sketcher.Constraint("Coincident", 9, 2, 10, 1))
sketch5.addConstraint(Sketcher.Constraint("Coincident", 10, 2, 11, 1))
sketch5.addConstraint(Sketcher.Constraint("Tangent", 11, 2, 12, 1))
sketch5.addConstraint(Sketcher.Constraint("Tangent", 12, 2, 13, 1))
sketch5.addConstraint(Sketcher.Constraint("Coincident", 13, 2, 14, 1))
sketch5.addConstraint(Sketcher.Constraint("Coincident", 14, 2, 15, 1))
sketch5.addConstraint(Sketcher.Constraint("Tangent", 15, 2, 8, 1))
sketch5.addConstraint(Sketcher.Constraint("Tangent", 16, 2, 17, 1))
sketch5.addConstraint(Sketcher.Constraint("Coincident", 17, 2, 18, 1))
sketch5.addConstraint(Sketcher.Constraint("Coincident", 18, 2, 19, 1))
sketch5.addConstraint(Sketcher.Constraint("Tangent", 19, 2, 20, 1))
sketch5.addConstraint(Sketcher.Constraint("Tangent", 20, 2, 21, 1))
sketch5.addConstraint(Sketcher.Constraint("Coincident", 21, 2, 22, 1))
sketch5.addConstraint(Sketcher.Constraint("Coincident", 22, 2, 23, 1))
sketch5.addConstraint(Sketcher.Constraint("Tangent", 23, 2, 16, 1))
sketch5.addConstraint(Sketcher.Constraint("Tangent", 24, 2, 25, 1))
sketch5.addConstraint(Sketcher.Constraint("Coincident", 25, 2, 26, 1))
sketch5.addConstraint(Sketcher.Constraint("Coincident", 26, 2, 27, 1))
sketch5.addConstraint(Sketcher.Constraint("Tangent", 27, 2, 28, 1))
sketch5.addConstraint(Sketcher.Constraint("Tangent", 28, 2, 29, 1))
sketch5.addConstraint(Sketcher.Constraint("Coincident", 29, 2, 30, 1))
sketch5.addConstraint(Sketcher.Constraint("Coincident", 30, 2, 31, 1))
sketch5.addConstraint(Sketcher.Constraint("Tangent", 31, 2, 24, 1))
sketch5.addConstraint(Sketcher.Constraint("Tangent", 32, 2, 33, 1))
sketch5.addConstraint(Sketcher.Constraint("Coincident", 33, 2, 34, 1))
sketch5.addConstraint(Sketcher.Constraint("Coincident", 34, 2, 35, 1))
sketch5.addConstraint(Sketcher.Constraint("Tangent", 35, 2, 36, 1))
sketch5.addConstraint(Sketcher.Constraint("Tangent", 36, 2, 37, 1))
sketch5.addConstraint(Sketcher.Constraint("Coincident", 37, 2, 38, 1))
sketch5.addConstraint(Sketcher.Constraint("Coincident", 38, 2, 39, 1))
sketch5.addConstraint(Sketcher.Constraint("Tangent", 39, 2, 32, 1))
sketch5.addConstraint(Sketcher.Constraint("Vertical", 0))
sketch5.addConstraint(Sketcher.Constraint("Horizontal", 2))
sketch5.addConstraint(Sketcher.Constraint("Vertical", 4))
sketch5.addConstraint(Sketcher.Constraint("Horizontal", 6))
sketch5.addConstraint(Sketcher.Constraint("Vertical", 8))
sketch5.addConstraint(Sketcher.Constraint("Horizontal", 10))
sketch5.addConstraint(Sketcher.Constraint("Vertical", 12))
sketch5.addConstraint(Sketcher.Constraint("Horizontal", 14))
sketch5.addConstraint(Sketcher.Constraint("Vertical", 16))
sketch5.addConstraint(Sketcher.Constraint("Horizontal", 18))
sketch5.addConstraint(Sketcher.Constraint("Vertical", 20))
sketch5.addConstraint(Sketcher.Constraint("Horizontal", 22))
sketch5.addConstraint(Sketcher.Constraint("Vertical", 24))
sketch5.addConstraint(Sketcher.Constraint("Horizontal", 26))
sketch5.addConstraint(Sketcher.Constraint("Vertical", 28))
sketch5.addConstraint(Sketcher.Constraint("Horizontal", 30))
sketch5.addConstraint(Sketcher.Constraint("Vertical", 32))
sketch5.addConstraint(Sketcher.Constraint("Horizontal", 34))
sketch5.addConstraint(Sketcher.Constraint("Vertical", 36))
sketch5.addConstraint(Sketcher.Constraint("Horizontal", 38))
sketch5.addConstraint(Sketcher.Constraint("Equal", 1, 3))
sketch5.addConstraint(Sketcher.Constraint("Equal", 3, 5))
sketch5.addConstraint(Sketcher.Constraint("Equal", 5, 7))
sketch5.addConstraint(Sketcher.Constraint("Equal", 7, 9))
sketch5.addConstraint(Sketcher.Constraint("Equal", 9, 11))
sketch5.addConstraint(Sketcher.Constraint("Equal", 11, 13))
sketch5.addConstraint(Sketcher.Constraint("Equal", 13, 15))
sketch5.addConstraint(Sketcher.Constraint("Equal", 15, 17))
sketch5.addConstraint(Sketcher.Constraint("Equal", 17, 19))
sketch5.addConstraint(Sketcher.Constraint("Equal", 19, 21))
sketch5.addConstraint(Sketcher.Constraint("Equal", 21, 23))
sketch5.addConstraint(Sketcher.Constraint("Equal", 23, 25))
sketch5.addConstraint(Sketcher.Constraint("Equal", 25, 27))
sketch5.addConstraint(Sketcher.Constraint("Equal", 27, 29))
sketch5.addConstraint(Sketcher.Constraint("Equal", 29, 31))
sketch5.addConstraint(Sketcher.Constraint("Equal", 31, 33))
sketch5.addConstraint(Sketcher.Constraint("Equal", 33, 35))
sketch5.addConstraint(Sketcher.Constraint("Equal", 35, 37))
sketch5.addConstraint(Sketcher.Constraint("Equal", 37, 39))
sketch5.addConstraint(Sketcher.Constraint("Symmetric", 17, 3, 19, 3, -2))
sketch5.addConstraint(Sketcher.Constraint("Symmetric", 3, 3, 25, 3, -2))
sketch5.addConstraint(Sketcher.Constraint("Symmetric", 1, 3, 27, 3, -2))
sketch5.addConstraint(Sketcher.Constraint("Symmetric", 11, 3, 33, 3, -2))
sketch5.addConstraint(Sketcher.Constraint("Symmetric", 9, 3, 35, 3, -2))
sketch5.addConstraint(Sketcher.Constraint("Symmetric", 6, 2, 29, 2, -2))
sketch5.addConstraint(Sketcher.Constraint("Symmetric", 14, 2, 37, 2, -2))
sketch5.addConstraint(Sketcher.Constraint("Horizontal", 1, 3, 3, 3))
sketch5.addConstraint(Sketcher.Constraint("Horizontal", 5, 3, 7, 3))
sketch5.addConstraint(Sketcher.Constraint("Horizontal", 3, 3, 9, 3))
sketch5.addConstraint(Sketcher.Constraint("Horizontal", 9, 3, 11, 3))
sketch5.addConstraint(Sketcher.Constraint("Horizontal", 7, 3, 13, 3))
sketch5.addConstraint(Sketcher.Constraint("Horizontal", 13, 3, 15, 3))
sketch5.addConstraint(Sketcher.Constraint("Horizontal", 11, 3, 17, 3))
sketch5.addConstraint(Sketcher.Constraint("Horizontal", 15, 3, 21, 3))
sketch5.addConstraint(Sketcher.Constraint("Horizontal", 21, 3, 23, 3))
sketch5.addConstraint(Sketcher.Constraint("Horizontal", 29, 3, 31, 3))
sketch5.addConstraint(Sketcher.Constraint("Horizontal", 37, 3, 39, 3))
sketch5.addConstraint(Sketcher.Constraint("Horizontal", 2, 2, 9, 2))
sketch5.addConstraint(Sketcher.Constraint("Horizontal", 6, 2, 13, 2))
sketch5.addConstraint(Sketcher.Constraint("Horizontal", 10, 2, 17, 2))
sketch5.addConstraint(Sketcher.Constraint("Horizontal", 14, 2, 21, 2))
sketch5.addConstraint(Sketcher.Constraint("Horizontal", 18, 2, 25, 2))
sketch5.addConstraint(Sketcher.Constraint("Horizontal", 26, 2, 33, 2))
sketch5.addConstraint(Sketcher.Constraint("Vertical", 2, 2, 5, 2))
sketch5.addConstraint(Sketcher.Constraint("Equal", 6, 10))
sketch5.addConstraint(Sketcher.Constraint("Equal", 14, 18))
sketch5.addConstraint(Sketcher.Constraint("Radius", 1, Q("1.1 mm")))
sketch5.addConstraint(Sketcher.Constraint("DistanceY", 0, 1, 0, 2, Q("3 mm")))
sketch5.addConstraint(Sketcher.Constraint("DistanceX", -1, 1, 1, 3, Q("35 mm")))
sketch5.addConstraint(Sketcher.Constraint("DistanceY", 1, 3, -1, 1, Q("6 mm")))
sketch5.addConstraint(Sketcher.Constraint("DistanceX", -1, 1, 3, 3, Q("25 mm")))
sketch5.addConstraint(Sketcher.Constraint("DistanceX", -1, 1, 9, 3, Q("65 mm")))
sketch5.addConstraint(Sketcher.Constraint("DistanceY", 1, 2, -1, 1, Q("5.9 mm")))
pocket4 = doc.addObject("PartDesign::Pocket", "Pocket003")
body.addObject(pocket4)
pocket4.Profile = sketch5
pocket4.Type = "ThroughAll"

sketch6 = doc.addObject("Sketcher::SketchObject", "Sketch005")
body.addObject(sketch6)
sketch6.AttachmentSupport = (doc.XZ_Plane, [""])
sketch6.MapMode = "FlatFace"
add_polygon(sketch6, [(-127, 10.75), (-127, -5.25), (-90, -5.25), (-90, 10.75)])
add_polygon(sketch6, [(-121, -1.75), (-124, -1.75), (-124, 7.25), (-121, 7.25)])
sketch6.addConstraint(Sketcher.Constraint("Vertical", 0))
sketch6.addConstraint(Sketcher.Constraint("Horizontal", 1))
sketch6.addConstraint(Sketcher.Constraint("Vertical", 2))
sketch6.addConstraint(Sketcher.Constraint("Horizontal", 3))
sketch6.addConstraint(Sketcher.Constraint("Horizontal", 4))
sketch6.addConstraint(Sketcher.Constraint("Vertical", 5))
sketch6.addConstraint(Sketcher.Constraint("Horizontal", 6))
sketch6.addConstraint(Sketcher.Constraint("Vertical", 7))
sketch6.addConstraint(Sketcher.Constraint("DistanceX", 1, 1, 1, 2, Q("37 mm")))
sketch6.addConstraint(Sketcher.Constraint("DistanceX", 4, 2, 4, 1, Q("3 mm")))
sketch6.addConstraint(Sketcher.Constraint("DistanceY", 0, 2, 0, 1, Q("16 mm")))
sketch6.addConstraint(Sketcher.Constraint("DistanceY", 5, 1, 5, 2, Q("9 mm")))
sketch6.addConstraint(Sketcher.Constraint("DistanceX", 0, 2, -1, 1, Q("127 mm")))
sketch6.addConstraint(Sketcher.Constraint("DistanceX", 4, 2, -1, 1, Q("124 mm")))
sketch6.addConstraint(Sketcher.Constraint("DistanceY", 0, 2, 4, 2, Q("3.5 mm")))
sketch6.addConstraint(Sketcher.Constraint("DistanceY", 0, 2, -1, 1, Q("5.25 mm")))
pad2 = doc.addObject("PartDesign::Pad", "Pad001")
body.addObject(pad2)
pad2.Profile = sketch6
pad2.Length = 3
pad2.Reversed = True

sketch7 = doc.addObject("Sketcher::SketchObject", "Sketch006")
body.addObject(sketch7)
sketch7.AttachmentSupport = (doc.XZ_Plane, [""])
sketch7.MapMode = "FlatFace"
sketch7.AttachmentOffset = App.Placement(App.Vector(0, 0, -3), App.Rotation())
sketch7.addGeometry(Part.Circle(App.Vector(-123.5025, -0.882536, 0), App.Vector(0, 0, 1), 1), False)
sketch7.addGeometry(Part.Circle(App.Vector(-121.4975, -0.882536, 0), App.Vector(0, 0, 1), 1), False)
sketch7.addGeometry(Part.Circle(App.Vector(-121.4975, 6.382536, 0), App.Vector(0, 0, 1), 1), False)
sketch7.addGeometry(Part.Circle(App.Vector(-123.5025, 6.382536, 0), App.Vector(0, 0, 1), 1), False)
sketch7.addConstraint(Sketcher.Constraint("Equal", 0, 1))
sketch7.addConstraint(Sketcher.Constraint("Equal", 1, 2))
sketch7.addConstraint(Sketcher.Constraint("Equal", 2, 3))
sketch7.addConstraint(Sketcher.Constraint("Horizontal", 0, 3, 1, 3))
sketch7.addConstraint(Sketcher.Constraint("Horizontal", 2, 3, 3, 3))
sketch7.addConstraint(Sketcher.Constraint("Vertical", 1, 3, 2, 3))
sketch7.addConstraint(Sketcher.Constraint("Vertical", 0, 3, 3, 3))
sketch7.addConstraint(Sketcher.Constraint("Diameter", 0, Q("2 mm")))
sketch7.addConstraint(Sketcher.Constraint("DistanceX", 0, 3, 1, 3, Q("2.005 mm")))
sketch7.addConstraint(Sketcher.Constraint("DistanceX", 0, 3, -1, 1, Q("123.5025 mm")))
sketch7.addConstraint(Sketcher.Constraint("DistanceY", 0, 3, -1, 1, Q("0.882536 mm")))
sketch7.addConstraint(Sketcher.Constraint("DistanceY", -1, 1, 2, 3, Q("6.382536 mm")))
pocket5 = doc.addObject("PartDesign::Pocket", "Pocket004")
body.addObject(pocket5)
pocket5.Profile = sketch7
pocket5.Type = "ThroughAll"
pocket5.Reversed = True
doc.recompute()

fillet2 = doc.addObject("PartDesign::Fillet", "Fillet001")
body.addObject(fillet2)
fillet2.Base = (pocket5, edges_at(pocket5, [
    (90, 1.5, 15),
    (72.5, 1.5, 15),
    (-72.5, 1.5, 15),
    (-90, 1.5, 15),
    (-90, 1.5, -15),
    (90, 1.5, -15),
    (-127, 1.5, 10.75),
    (-127, 1.5, -5.25),
    (-90, 1.5, -5.25),
    (-90, 1.5, 10.75),
]))
fillet2.Radius = 2

doc.recompute()
